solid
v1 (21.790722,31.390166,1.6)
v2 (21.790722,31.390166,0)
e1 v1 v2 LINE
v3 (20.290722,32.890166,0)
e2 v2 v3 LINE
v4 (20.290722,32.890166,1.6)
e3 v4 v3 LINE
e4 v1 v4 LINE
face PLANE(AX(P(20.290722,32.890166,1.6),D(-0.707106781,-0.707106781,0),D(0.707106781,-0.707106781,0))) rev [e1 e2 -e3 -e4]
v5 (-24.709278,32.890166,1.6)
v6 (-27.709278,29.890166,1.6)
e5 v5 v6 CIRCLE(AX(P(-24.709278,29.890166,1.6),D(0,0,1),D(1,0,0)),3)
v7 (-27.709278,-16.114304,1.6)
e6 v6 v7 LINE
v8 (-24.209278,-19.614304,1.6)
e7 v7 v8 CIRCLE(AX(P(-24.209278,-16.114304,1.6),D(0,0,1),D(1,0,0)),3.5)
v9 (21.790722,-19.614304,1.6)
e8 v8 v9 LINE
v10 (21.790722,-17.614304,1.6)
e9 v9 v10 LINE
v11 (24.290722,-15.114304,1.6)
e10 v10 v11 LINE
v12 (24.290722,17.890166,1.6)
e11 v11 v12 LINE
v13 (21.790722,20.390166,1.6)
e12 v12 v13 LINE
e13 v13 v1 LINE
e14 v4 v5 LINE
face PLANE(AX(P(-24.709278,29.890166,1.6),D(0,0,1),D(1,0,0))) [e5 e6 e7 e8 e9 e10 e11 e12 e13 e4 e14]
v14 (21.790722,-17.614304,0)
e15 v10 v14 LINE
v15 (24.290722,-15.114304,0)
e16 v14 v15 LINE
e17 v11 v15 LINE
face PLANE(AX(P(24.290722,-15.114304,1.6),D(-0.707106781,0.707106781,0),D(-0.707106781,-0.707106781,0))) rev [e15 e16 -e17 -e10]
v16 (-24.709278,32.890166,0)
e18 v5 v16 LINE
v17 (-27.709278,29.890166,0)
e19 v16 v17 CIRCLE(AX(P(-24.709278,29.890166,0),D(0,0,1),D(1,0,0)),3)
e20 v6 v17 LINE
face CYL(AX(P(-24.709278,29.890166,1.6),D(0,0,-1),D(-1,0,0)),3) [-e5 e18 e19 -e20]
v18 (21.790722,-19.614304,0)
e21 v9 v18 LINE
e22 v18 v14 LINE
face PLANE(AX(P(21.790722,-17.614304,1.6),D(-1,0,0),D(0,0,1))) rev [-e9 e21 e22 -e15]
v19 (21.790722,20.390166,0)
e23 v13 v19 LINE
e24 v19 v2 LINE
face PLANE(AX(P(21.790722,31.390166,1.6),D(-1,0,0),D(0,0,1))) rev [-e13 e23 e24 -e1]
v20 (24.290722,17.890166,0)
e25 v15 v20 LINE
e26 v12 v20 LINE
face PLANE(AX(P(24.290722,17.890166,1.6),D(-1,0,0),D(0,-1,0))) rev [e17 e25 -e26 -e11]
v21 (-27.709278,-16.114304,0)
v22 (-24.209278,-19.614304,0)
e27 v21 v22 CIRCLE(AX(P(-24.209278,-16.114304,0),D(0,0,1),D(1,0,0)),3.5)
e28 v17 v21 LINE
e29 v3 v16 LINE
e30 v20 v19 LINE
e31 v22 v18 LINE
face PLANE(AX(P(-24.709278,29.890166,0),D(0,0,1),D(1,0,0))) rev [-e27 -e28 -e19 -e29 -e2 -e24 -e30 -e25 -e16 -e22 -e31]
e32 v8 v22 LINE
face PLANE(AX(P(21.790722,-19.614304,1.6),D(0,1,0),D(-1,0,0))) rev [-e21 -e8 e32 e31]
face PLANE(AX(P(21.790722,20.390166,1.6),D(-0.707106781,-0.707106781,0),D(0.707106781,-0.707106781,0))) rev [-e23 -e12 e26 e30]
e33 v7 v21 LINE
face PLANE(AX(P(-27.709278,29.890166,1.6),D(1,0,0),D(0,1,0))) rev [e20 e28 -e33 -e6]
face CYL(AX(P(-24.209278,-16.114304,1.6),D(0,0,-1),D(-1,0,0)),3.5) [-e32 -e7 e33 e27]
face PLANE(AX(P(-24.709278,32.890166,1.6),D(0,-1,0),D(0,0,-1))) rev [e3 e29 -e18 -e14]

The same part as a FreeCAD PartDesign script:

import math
import FreeCAD as App
import Part
import Sketcher

V = App.Vector

doc = App.newDocument("Part")
body = doc.addObject("PartDesign::Body", "Body")

# Sketch on XY plane
sketch1 = body.newObject("Sketcher::SketchObject", "Sketch")
sketch1.AttachmentSupport = (doc.getObject("XY_Plane"), [""])
sketch1.MapMode = "FlatFace"
sketch1.addGeometry(Part.LineSegment(V(20.290722, 32.890166, 0), V(-24.709278, 32.890166, 0)), False)
sketch1.addGeometry(Part.ArcOfCircle(Part.Circle(V(-24.709278, 29.890166, 0), V(0, 0, 1), 3), math.radians(90), math.radians(180)), False)
sketch1.addGeometry(Part.LineSegment(V(-27.709278, 29.890166, 0), V(-27.709278, -16.114304, 0)), False)
sketch1.addGeometry(Part.ArcOfCircle(Part.Circle(V(-24.209278, -16.114304, 0), V(0, 0, 1), 3.5), math.radians(-180), math.radians(-90)), False)
sketch1.addGeometry(Part.LineSegment(V(-24.209278, -19.614304, 0), V(21.790722, -19.614304, 0)), False)
sketch1.addGeometry(Part.LineSegment(V(21.790722, -19.614304, 0), V(21.790722, -17.614304, 0)), False)
sketch1.addGeometry(Part.LineSegment(V(21.790722, -17.614304, 0), V(24.290722, -15.114304, 0)), False)
sketch1.addGeometry(Part.LineSegment(V(24.290722, -15.114304, 0), V(24.290722, 17.890166, 0)), False)
sketch1.addGeometry(Part.LineSegment(V(24.290722, 17.890166, 0), V(21.790722, 20.390166, 0)), False)
sketch1.addGeometry(Part.LineSegment(V(21.790722, 20.390166, 0), V(21.790722, 31.390166, 0)), False)
sketch1.addGeometry(Part.LineSegment(V(21.790722, 31.390166, 0), V(20.290722, 32.890166, 0)), False)
sketch1.addConstraint(Sketcher.Constraint("Tangent", 0, 2, 1, 1))
sketch1.addConstraint(Sketcher.Constraint("Tangent", 1, 2, 2, 1))
sketch1.addConstraint(Sketcher.Constraint("Tangent", 2, 2, 3, 1))
sketch1.addConstraint(Sketcher.Constraint("Tangent", 3, 2, 4, 1))
sketch1.addConstraint(Sketcher.Constraint("Coincident", 4, 2, 5, 1))
sketch1.addConstraint(Sketcher.Constraint("Coincident", 5, 2, 6, 1))
sketch1.addConstraint(Sketcher.Constraint("Coincident", 6, 2, 7, 1))
sketch1.addConstraint(Sketcher.Constraint("Coincident", 7, 2, 8, 1))
sketch1.addConstraint(Sketcher.Constraint("Coincident", 8, 2, 9, 1))
sketch1.addConstraint(Sketcher.Constraint("Coincident", 9, 2, 10, 1))
sketch1.addConstraint(Sketcher.Constraint("Coincident", 10, 2, 0, 1))
sketch1.addConstraint(Sketcher.Constraint("Horizontal", 0))
sketch1.addConstraint(Sketcher.Constraint("Vertical", 2))
sketch1.addConstraint(Sketcher.Constraint("Horizontal", 4))
sketch1.addConstraint(Sketcher.Constraint("Vertical", 5))
sketch1.addConstraint(Sketcher.Constraint("Vertical", 7))
sketch1.addConstraint(Sketcher.Constraint("Vertical", 9))
sketch1.addConstraint(Sketcher.Constraint("Perpendicular", 6, 8))
sketch1.addConstraint(Sketcher.Constraint("Parallel", 8, 10))
sketch1.addConstraint(Sketcher.Constraint("Vertical", 5, 2, 8, 2))
sketch1.addConstraint(Sketcher.Constraint("Equal", 6, 8))
sketch1.addConstraint(Sketcher.Constraint("Radius", 1, 3.0))
sketch1.addConstraint(Sketcher.Constraint("Radius", 3, 3.5))
sketch1.addConstraint(Sketcher.Constraint("DistanceX", 0, 2, 0, 1, 45.0))
sketch1.addConstraint(Sketcher.Constraint("DistanceX", 4, 1, 4, 2, 46.0))
sketch1.addConstraint(Sketcher.Constraint("DistanceY", 5, 1, 5, 2, 2.0))
sketch1.addConstraint(Sketcher.Constraint("DistanceY", 9, 1, 9, 2, 11.0))
sketch1.addConstraint(Sketcher.Constraint("DistanceY", 3, 3, 6, 2, 1.0))
sketch1.addConstraint(Sketcher.Constraint("DistanceY", 2, 2, 2, 1, 46.00447))
sketch1.addConstraint(Sketcher.Constraint("DistanceX", 1, 3, -1, 1, 24.709278))
sketch1.addConstraint(Sketcher.Constraint("DistanceY", -1, 1, 1, 3, 29.890166))
pad1 = body.newObject("PartDesign::Pad", "Pad")
pad1.Profile = sketch1
pad1.Length = 1.6

doc.recompute()
